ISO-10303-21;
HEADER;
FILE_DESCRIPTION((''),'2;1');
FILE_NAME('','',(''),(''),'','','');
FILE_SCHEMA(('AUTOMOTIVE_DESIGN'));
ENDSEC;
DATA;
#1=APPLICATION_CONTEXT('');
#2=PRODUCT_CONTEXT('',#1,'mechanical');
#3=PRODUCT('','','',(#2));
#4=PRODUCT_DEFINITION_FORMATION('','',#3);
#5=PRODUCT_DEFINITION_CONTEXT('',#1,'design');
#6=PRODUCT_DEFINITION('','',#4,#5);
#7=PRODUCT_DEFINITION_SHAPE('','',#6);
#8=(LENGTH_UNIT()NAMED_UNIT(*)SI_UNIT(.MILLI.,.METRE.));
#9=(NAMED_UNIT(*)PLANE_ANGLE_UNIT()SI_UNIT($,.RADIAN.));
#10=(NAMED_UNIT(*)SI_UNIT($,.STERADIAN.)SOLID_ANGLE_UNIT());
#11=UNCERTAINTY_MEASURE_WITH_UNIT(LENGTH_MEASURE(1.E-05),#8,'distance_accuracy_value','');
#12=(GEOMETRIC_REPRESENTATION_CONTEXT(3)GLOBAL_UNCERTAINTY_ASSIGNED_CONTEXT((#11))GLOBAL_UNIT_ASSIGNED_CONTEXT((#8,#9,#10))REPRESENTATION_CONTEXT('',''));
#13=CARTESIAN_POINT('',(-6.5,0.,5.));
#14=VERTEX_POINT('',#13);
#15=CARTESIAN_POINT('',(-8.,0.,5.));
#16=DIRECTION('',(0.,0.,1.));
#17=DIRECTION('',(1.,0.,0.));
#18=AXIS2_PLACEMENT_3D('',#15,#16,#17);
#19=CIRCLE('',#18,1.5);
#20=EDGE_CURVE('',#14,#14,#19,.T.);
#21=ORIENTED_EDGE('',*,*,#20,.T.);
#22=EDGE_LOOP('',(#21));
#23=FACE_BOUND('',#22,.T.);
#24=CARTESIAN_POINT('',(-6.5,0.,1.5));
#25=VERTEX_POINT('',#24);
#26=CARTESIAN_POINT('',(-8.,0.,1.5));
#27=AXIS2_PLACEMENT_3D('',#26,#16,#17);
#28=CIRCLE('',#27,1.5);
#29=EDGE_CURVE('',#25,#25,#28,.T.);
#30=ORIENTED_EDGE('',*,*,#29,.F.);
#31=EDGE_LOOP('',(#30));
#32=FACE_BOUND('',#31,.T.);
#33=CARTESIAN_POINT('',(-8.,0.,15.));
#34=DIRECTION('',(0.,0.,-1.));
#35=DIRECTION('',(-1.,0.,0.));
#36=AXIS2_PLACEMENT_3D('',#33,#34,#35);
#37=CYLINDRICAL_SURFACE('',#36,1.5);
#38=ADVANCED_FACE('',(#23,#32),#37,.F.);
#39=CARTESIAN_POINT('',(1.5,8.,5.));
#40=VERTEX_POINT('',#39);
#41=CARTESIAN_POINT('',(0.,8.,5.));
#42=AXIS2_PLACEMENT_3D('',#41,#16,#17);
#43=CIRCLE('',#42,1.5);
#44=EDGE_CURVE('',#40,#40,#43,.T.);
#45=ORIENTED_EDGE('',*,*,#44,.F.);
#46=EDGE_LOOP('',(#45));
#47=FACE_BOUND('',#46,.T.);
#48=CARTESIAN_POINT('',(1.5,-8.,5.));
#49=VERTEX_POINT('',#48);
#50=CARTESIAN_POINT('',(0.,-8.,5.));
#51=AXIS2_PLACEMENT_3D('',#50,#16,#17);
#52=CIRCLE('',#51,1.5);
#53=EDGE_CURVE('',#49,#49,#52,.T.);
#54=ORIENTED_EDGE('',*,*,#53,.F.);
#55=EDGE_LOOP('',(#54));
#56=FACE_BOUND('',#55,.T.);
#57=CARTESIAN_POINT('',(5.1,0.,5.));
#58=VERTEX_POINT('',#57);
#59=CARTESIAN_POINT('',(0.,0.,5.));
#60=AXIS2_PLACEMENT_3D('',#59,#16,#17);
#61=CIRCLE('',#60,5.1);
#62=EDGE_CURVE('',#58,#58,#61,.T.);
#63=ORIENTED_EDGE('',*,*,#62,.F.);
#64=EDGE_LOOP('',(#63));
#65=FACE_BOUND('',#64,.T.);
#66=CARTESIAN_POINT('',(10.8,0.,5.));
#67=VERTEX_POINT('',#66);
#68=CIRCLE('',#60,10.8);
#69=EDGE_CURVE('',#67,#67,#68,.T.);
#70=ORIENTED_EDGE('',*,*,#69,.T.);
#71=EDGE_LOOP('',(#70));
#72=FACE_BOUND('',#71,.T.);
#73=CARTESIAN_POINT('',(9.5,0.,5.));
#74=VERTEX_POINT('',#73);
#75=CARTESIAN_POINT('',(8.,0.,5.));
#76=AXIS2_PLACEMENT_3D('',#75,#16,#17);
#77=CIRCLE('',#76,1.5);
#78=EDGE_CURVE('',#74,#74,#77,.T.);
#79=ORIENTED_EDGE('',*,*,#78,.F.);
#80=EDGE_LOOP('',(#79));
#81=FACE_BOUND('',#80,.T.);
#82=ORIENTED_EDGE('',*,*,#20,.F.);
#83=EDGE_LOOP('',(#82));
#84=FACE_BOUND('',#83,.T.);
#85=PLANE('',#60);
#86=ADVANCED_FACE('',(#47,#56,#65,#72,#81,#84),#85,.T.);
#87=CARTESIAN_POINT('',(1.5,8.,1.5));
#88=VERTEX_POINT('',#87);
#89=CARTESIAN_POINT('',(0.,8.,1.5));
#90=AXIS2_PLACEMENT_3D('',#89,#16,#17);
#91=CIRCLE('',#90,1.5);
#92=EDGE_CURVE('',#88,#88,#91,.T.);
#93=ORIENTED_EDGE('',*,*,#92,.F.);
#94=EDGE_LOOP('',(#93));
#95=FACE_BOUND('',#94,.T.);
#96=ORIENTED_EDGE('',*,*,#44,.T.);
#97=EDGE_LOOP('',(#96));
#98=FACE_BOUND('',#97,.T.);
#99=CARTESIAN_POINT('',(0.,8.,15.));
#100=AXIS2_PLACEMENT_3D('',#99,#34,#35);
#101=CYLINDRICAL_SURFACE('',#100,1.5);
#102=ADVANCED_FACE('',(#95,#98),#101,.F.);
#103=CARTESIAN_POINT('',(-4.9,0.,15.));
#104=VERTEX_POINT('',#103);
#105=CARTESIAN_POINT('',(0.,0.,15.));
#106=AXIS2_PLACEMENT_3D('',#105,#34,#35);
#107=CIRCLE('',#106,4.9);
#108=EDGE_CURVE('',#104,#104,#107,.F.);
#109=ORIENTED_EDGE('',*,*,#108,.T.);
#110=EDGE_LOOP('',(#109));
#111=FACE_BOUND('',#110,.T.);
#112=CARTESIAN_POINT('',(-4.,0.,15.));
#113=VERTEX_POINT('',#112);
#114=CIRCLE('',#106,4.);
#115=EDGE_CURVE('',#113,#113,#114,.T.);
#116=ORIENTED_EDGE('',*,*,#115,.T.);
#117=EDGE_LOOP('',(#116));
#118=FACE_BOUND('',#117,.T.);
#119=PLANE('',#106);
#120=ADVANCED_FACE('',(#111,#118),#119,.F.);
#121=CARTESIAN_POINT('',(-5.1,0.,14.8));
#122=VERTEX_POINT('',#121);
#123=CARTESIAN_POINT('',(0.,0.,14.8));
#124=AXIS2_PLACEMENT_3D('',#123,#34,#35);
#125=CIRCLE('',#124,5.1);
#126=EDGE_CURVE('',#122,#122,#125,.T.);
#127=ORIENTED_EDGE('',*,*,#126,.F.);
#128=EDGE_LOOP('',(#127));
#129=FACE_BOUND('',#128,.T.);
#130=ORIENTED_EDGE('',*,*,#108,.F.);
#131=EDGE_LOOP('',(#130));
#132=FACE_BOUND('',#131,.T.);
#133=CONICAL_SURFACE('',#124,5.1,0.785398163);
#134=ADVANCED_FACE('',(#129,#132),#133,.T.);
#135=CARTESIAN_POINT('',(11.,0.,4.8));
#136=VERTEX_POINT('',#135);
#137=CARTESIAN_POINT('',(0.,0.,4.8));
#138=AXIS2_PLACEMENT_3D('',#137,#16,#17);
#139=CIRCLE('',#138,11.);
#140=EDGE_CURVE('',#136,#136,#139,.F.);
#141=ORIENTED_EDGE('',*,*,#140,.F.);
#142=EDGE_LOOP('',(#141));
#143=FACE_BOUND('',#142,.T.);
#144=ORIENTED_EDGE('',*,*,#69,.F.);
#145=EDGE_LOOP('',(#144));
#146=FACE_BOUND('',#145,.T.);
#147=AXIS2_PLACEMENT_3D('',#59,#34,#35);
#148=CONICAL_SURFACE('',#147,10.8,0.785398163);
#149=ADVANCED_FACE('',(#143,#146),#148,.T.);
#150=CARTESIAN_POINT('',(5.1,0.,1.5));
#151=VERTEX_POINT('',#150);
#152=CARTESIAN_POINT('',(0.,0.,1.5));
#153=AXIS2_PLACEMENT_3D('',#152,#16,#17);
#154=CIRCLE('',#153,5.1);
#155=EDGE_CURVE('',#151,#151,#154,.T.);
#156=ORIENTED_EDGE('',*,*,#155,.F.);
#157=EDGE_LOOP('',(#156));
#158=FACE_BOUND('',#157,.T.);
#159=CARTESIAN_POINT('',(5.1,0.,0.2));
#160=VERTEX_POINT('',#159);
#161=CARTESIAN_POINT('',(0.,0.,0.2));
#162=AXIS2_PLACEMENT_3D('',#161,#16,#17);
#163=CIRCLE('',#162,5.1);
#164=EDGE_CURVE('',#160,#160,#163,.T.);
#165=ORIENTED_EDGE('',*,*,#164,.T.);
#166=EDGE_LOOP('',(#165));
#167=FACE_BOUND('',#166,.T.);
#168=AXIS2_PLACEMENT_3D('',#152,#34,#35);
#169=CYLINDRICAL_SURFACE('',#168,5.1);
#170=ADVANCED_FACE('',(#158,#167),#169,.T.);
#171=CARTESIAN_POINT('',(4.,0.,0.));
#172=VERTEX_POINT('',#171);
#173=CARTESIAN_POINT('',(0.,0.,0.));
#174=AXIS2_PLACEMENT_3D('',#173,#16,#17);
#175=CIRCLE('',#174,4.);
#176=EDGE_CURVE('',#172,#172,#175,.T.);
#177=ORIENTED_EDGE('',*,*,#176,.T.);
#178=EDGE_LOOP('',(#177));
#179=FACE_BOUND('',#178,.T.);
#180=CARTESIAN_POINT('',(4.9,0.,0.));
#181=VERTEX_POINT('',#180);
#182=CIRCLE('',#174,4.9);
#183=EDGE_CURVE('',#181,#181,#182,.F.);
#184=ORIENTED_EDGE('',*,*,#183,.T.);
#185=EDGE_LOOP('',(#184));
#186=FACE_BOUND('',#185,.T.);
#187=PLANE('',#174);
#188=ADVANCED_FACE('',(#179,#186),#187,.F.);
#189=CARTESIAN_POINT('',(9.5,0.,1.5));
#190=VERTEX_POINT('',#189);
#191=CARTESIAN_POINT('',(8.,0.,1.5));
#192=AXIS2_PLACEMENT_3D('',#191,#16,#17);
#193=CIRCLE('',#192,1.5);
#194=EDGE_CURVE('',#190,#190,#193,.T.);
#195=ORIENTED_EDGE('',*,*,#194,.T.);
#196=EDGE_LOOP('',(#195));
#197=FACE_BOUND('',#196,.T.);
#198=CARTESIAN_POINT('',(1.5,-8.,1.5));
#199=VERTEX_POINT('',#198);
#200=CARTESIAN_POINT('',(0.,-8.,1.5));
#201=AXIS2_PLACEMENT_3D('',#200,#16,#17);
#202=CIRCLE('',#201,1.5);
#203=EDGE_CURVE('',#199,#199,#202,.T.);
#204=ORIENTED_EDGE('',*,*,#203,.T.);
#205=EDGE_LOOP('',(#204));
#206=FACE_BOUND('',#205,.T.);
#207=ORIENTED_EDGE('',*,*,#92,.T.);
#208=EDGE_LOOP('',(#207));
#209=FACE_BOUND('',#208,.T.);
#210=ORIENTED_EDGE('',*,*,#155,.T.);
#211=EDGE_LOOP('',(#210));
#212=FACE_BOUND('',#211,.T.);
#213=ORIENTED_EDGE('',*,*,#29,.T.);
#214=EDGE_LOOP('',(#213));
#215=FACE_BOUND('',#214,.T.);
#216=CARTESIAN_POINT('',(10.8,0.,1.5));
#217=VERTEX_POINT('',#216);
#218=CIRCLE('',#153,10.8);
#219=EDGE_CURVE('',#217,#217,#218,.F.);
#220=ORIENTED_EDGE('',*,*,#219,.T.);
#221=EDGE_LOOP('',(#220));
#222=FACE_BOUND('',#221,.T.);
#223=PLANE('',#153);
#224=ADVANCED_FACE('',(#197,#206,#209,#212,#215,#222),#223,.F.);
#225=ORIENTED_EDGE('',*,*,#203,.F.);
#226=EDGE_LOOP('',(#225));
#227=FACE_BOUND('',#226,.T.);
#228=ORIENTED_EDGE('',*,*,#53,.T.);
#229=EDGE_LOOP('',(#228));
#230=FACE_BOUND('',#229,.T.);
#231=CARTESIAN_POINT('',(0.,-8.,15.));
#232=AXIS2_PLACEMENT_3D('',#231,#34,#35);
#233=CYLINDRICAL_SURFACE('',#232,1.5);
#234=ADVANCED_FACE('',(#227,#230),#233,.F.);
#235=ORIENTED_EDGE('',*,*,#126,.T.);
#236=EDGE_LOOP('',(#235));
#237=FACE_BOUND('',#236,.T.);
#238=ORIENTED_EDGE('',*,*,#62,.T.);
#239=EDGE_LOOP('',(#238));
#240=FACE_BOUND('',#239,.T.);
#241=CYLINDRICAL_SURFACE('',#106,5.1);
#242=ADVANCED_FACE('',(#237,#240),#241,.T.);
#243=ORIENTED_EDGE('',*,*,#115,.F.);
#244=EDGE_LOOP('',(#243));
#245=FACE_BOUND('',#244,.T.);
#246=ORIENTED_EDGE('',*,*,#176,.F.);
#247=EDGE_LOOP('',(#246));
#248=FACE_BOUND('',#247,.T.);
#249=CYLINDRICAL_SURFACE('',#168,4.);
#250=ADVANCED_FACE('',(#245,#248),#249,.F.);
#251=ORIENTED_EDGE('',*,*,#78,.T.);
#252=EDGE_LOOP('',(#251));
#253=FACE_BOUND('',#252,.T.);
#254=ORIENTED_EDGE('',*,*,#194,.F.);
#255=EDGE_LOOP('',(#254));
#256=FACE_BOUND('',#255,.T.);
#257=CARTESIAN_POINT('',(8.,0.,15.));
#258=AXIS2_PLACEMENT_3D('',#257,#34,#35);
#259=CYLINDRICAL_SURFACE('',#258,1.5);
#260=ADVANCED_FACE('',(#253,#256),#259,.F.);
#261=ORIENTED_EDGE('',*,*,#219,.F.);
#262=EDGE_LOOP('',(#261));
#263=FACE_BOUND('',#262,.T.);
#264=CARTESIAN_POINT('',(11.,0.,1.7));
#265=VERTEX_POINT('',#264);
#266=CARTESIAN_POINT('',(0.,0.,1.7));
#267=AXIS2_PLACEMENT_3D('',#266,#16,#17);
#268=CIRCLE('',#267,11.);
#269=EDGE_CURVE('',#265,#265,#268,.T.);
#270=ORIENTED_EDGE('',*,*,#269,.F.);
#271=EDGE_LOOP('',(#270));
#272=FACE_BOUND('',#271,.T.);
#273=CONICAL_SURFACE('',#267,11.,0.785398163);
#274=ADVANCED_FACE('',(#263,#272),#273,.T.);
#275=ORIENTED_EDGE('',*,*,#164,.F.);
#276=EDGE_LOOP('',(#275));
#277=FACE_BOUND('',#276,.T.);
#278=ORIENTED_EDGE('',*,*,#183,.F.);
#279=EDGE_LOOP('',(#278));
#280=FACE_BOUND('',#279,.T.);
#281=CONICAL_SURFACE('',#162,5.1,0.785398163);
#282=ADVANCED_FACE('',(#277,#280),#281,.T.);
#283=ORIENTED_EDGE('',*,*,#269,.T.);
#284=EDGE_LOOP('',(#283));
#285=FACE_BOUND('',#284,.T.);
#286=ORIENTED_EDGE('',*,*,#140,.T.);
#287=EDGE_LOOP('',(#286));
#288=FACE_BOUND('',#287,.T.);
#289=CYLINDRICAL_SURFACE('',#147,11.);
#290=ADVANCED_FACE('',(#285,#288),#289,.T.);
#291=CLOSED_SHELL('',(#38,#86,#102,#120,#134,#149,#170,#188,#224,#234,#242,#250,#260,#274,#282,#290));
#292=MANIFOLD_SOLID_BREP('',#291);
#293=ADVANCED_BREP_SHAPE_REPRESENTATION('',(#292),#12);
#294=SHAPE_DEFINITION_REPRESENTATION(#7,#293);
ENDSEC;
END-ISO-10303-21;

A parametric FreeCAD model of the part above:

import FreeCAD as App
import Part
import Sketcher
from FreeCAD import Vector
Q = App.Units.Quantity


def edges_at(feature, points):
    """Names of the edges that pass closest to the given points."""
    edges = feature.Shape.Edges
    near = lambda p: min(range(len(edges)), key=lambda i: edges[i].distToShape(Part.Vertex(*p))[0])
    return sorted({f"Edge{near(p) + 1}" for p in points})

doc = App.newDocument("Part")
body = doc.addObject("PartDesign::Body", "Body")

# Sketch on XY plane
sketch1 = doc.addObject("Sketcher::SketchObject", "Sketch")
body.addObject(sketch1)
sketch1.AttachmentSupport = (doc.XY_Plane, [""])
sketch1.MapMode = "FlatFace"
sketch1.addGeometry(Part.Circle(Vector(0, 0, 0), Vector(0, 0, 1), 5.1), False)
sketch1.addGeometry(Part.Circle(Vector(0, 0, 0), Vector(0, 0, 1), 4), False)
sketch1.addConstraint(Sketcher.Constraint("Coincident", 0, 3, -1, 1))
sketch1.addConstraint(Sketcher.Constraint("Coincident", 1, 3, -1, 1))
sketch1.addConstraint(Sketcher.Constraint("Diameter", 1, Q("8 mm")))
sketch1.addConstraint(Sketcher.Constraint("Diameter", 0, Q("10.2 mm")))
pad1 = doc.addObject("PartDesign::Pad", "Pad")
body.addObject(pad1)
pad1.Profile = sketch1
pad1.Length = 1.5

# Sketch on XY plane
sketch2 = doc.addObject("Sketcher::SketchObject", "Sketch001")
body.addObject(sketch2)
sketch2.AttachmentSupport = (doc.XY_Plane, [""])
sketch2.MapMode = "FlatFace"
sketch2.AttachmentOffset = App.Placement(Vector(0, 0, 1.5), App.Rotation())
sketch2.addGeometry(Part.Circle(Vector(0, 0, 0), Vector(0, 0, 1), 11), False)
sketch2.addGeometry(Part.Circle(Vector(0, 0, 0), Vector(0, 0, 1), 4), False)
sketch2.addConstraint(Sketcher.Constraint("Coincident", 0, 3, -1, 1))
sketch2.addConstraint(Sketcher.Constraint("Coincident", 1, 3, -1, 1))
sketch2.addConstraint(Sketcher.Constraint("Diameter", 0, Q("22 mm")))
sketch2.addConstraint(Sketcher.Constraint("Diameter", 1, Q("8 mm")))
pad2 = doc.addObject("PartDesign::Pad", "Pad001")
body.addObject(pad2)
pad2.Profile = sketch2
pad2.Length = 3.5

# Sketch on XY plane
sketch3 = doc.addObject("Sketcher::SketchObject", "Sketch002")
body.addObject(sketch3)
sketch3.AttachmentSupport = (doc.XY_Plane, [""])
sketch3.MapMode = "FlatFace"
sketch3.addGeometry(Part.Circle(Vector(0, 0, 0), Vector(0, 0, 1), 5.1), False)
sketch3.addGeometry(Part.Circle(Vector(0, 0, 0), Vector(0, 0, 1), 4), False)
sketch3.addConstraint(Sketcher.Constraint("Coincident", 0, 3, -1, 1))
sketch3.addConstraint(Sketcher.Constraint("Coincident", 1, 3, -1, 1))
sketch3.addConstraint(Sketcher.Constraint("Diameter", 1, Q("8 mm")))
sketch3.addConstraint(Sketcher.Constraint("Diameter", 0, Q("10.2 mm")))
pad3 = doc.addObject("PartDesign::Pad", "Pad002")
body.addObject(pad3)
pad3.Profile = sketch3
pad3.Length = 15

# Sketch on XY plane
sketch4 = doc.addObject("Sketcher::SketchObject", "Sketch003")
body.addObject(sketch4)
sketch4.AttachmentSupport = (doc.XY_Plane, [""])
sketch4.MapMode = "FlatFace"
sketch4.AttachmentOffset = App.Placement(Vector(0, 0, 1.5), App.Rotation())
sketch4.addGeometry(Part.Circle(Vector(0, 8, 0), Vector(0, 0, 1), 1.5), False)
sketch4.addGeometry(Part.Circle(Vector(-8, 0, 0), Vector(0, 0, 1), 1.5), False)
sketch4.addGeometry(Part.Circle(Vector(0, -8, 0), Vector(0, 0, 1), 1.5), False)
sketch4.addGeometry(Part.Circle(Vector(8, 0, 0), Vector(0, 0, 1), 1.5), False)
sketch4.addConstraint(Sketcher.Constraint("Equal", 0, 1))
sketch4.addConstraint(Sketcher.Constraint("Equal", 1, 2))
sketch4.addConstraint(Sketcher.Constraint("Equal", 2, 3))
sketch4.addConstraint(Sketcher.Constraint("Symmetric", 0, 3, 2, 3, -1, 1))
sketch4.addConstraint(Sketcher.Constraint("Symmetric", 1, 3, 3, 3, -1, 1))
sketch4.addConstraint(Sketcher.Constraint("PointOnObject", 0, 3, -2))
sketch4.addConstraint(Sketcher.Constraint("PointOnObject", 1, 3, -1))
sketch4.addConstraint(Sketcher.Constraint("Diameter", 0, Q("3 mm")))
sketch4.addConstraint(Sketcher.Constraint("DistanceY", -1, 1, 0, 3, Q("8 mm")))
sketch4.addConstraint(Sketcher.Constraint("DistanceX", 1, 3, -1, 1, Q("8 mm")))
pocket1 = doc.addObject("PartDesign::Pocket", "Pocket")
body.addObject(pocket1)
pocket1.Profile = sketch4
pocket1.Type = "ThroughAll"
pocket1.Midplane = True
doc.recompute()

chamfer = doc.addObject("PartDesign::Chamfer", "Chamfer")
body.addObject(chamfer)
chamfer.Base = (pocket1, edges_at(pocket1, [
    (-11, 0, 5),
    (-11, 0, 1.5),
    (-5.1, 0, 15),
    (-5.1, 0, 0),
]))
chamfer.Size = 0.2

doc.recompute()
